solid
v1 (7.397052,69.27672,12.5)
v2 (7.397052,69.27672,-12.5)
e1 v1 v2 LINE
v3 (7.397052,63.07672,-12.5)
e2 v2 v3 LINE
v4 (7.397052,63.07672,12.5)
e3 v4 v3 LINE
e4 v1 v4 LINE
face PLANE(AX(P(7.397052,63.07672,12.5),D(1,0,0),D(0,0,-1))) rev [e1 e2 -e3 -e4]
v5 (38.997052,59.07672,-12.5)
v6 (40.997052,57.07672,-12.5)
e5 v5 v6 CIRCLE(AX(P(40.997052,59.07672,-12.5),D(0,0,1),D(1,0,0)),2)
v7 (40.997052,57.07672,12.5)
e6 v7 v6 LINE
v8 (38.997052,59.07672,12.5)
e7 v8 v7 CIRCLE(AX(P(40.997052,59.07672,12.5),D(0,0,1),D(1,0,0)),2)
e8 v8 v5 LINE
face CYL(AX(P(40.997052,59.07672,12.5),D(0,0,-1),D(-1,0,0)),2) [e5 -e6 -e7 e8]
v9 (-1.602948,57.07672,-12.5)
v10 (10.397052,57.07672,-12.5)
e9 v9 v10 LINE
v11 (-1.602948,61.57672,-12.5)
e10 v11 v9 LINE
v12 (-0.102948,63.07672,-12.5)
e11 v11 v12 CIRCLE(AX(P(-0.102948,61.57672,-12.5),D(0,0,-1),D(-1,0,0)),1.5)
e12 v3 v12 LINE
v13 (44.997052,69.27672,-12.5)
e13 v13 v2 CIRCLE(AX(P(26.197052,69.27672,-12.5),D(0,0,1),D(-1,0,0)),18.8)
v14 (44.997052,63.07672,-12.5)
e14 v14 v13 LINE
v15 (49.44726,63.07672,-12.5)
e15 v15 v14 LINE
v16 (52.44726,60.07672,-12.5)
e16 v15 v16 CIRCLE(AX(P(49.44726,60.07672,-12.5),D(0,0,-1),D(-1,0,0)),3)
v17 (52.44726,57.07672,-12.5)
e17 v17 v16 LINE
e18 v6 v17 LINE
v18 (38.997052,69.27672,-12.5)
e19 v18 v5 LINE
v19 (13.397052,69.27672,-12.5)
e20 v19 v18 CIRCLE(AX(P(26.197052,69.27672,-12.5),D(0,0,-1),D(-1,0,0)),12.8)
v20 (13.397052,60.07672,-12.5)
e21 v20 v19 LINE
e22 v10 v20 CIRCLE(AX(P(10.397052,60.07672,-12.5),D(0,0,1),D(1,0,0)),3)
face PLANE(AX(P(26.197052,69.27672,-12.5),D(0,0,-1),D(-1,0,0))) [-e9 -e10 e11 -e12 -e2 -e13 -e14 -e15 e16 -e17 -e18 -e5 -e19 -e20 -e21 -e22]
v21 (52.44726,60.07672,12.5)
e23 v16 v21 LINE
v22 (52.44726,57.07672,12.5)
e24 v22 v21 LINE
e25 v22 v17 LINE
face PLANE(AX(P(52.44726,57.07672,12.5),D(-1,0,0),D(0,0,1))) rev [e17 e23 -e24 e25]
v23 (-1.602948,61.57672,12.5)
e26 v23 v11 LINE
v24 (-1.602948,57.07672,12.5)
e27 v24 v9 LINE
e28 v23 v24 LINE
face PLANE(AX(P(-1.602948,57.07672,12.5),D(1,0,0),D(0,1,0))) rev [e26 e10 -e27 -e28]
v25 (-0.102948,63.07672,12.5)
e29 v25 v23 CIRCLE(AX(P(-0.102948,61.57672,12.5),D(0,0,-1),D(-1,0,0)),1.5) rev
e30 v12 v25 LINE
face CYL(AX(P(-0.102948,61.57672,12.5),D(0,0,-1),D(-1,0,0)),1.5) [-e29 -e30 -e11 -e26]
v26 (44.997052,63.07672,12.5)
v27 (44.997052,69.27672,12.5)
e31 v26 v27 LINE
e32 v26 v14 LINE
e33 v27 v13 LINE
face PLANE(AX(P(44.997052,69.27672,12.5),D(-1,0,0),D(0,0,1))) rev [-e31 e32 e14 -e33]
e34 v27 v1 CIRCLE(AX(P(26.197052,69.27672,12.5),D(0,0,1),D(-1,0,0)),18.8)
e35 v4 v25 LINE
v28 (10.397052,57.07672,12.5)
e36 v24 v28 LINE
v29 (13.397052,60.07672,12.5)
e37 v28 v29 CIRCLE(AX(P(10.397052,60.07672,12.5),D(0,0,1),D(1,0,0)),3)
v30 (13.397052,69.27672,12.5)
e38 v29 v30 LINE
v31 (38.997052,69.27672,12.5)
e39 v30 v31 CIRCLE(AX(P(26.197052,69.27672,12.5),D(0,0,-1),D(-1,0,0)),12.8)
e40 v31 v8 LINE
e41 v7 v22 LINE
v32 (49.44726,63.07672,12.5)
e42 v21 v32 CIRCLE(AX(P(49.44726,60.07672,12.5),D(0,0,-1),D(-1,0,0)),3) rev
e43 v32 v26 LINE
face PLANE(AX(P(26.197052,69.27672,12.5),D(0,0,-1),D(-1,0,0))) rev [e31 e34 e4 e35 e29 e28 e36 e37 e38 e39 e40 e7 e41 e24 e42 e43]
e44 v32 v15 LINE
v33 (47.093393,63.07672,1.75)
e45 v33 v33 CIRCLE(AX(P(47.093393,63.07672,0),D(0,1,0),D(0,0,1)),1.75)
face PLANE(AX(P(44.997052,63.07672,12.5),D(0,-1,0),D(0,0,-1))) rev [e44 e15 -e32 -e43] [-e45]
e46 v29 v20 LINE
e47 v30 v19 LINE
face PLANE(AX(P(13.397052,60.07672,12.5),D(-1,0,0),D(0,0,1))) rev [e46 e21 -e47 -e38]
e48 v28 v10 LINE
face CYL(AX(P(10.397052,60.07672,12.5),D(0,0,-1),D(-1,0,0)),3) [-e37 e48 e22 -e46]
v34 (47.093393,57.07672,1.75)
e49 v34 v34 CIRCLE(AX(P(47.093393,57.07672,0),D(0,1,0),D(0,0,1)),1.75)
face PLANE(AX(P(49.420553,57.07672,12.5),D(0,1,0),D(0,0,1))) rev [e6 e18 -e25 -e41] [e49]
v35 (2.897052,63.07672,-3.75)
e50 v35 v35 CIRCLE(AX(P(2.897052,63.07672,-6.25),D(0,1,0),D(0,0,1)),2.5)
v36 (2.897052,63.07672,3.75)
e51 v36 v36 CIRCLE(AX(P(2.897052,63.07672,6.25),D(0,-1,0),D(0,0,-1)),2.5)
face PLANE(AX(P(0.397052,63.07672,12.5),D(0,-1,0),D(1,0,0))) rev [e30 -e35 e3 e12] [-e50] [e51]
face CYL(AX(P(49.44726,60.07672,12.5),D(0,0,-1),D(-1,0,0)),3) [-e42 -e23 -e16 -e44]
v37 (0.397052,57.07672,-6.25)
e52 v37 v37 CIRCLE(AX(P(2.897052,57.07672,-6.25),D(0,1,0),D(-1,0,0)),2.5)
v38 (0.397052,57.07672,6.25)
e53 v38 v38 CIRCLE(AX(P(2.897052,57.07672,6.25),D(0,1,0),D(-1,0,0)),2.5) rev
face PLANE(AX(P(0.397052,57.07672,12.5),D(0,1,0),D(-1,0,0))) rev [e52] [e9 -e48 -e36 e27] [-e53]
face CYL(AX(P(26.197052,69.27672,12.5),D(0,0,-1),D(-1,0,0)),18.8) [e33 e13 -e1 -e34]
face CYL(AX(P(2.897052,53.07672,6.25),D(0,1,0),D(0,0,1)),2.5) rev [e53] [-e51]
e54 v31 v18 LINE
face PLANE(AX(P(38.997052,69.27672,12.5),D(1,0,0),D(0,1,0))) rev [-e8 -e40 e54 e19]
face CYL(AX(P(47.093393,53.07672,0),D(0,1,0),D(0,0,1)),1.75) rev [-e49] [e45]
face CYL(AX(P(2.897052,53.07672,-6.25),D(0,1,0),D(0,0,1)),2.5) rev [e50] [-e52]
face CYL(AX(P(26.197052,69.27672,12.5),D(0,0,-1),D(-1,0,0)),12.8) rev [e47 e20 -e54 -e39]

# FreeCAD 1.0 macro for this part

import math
import FreeCAD as App
import Part
import Sketcher
from FreeCAD import Vector


def edges_at(feature, points):
    """Names of the edges that pass closest to the given points."""
    edges = feature.Shape.Edges
    near = lambda p: min(range(len(edges)), key=lambda i: edges[i].distToShape(Part.Vertex(*p))[0])
    return sorted({f"Edge{near(p) + 1}" for p in points})

doc = App.newDocument("Part")
body = doc.addObject("PartDesign::Body", "Body")

# Sketch on XY plane
sketch1 = body.newObject("Sketcher::SketchObject", "Sketch")
sketch1.AttachmentSupport = (doc.getObject("XY_Plane"), [""])
sketch1.MapMode = "FlatFace"
sketch1.addGeometry([
    Part.ArcOfCircle(Part.Circle(Vector(10.4, 60.1, 0), Vector(0, 0, 1), 3), math.radians(-90), math.radians(0)),  # 0
    Part.LineSegment(Vector(13.4, 60.1, 0), Vector(13.4, 69.3, 0)),  # 1
    Part.ArcOfCircle(Part.Circle(Vector(26.2, 69.3, 0), Vector(0, 0, 1), 12.8), math.radians(0), math.radians(180)),  # 2
    Part.LineSegment(Vector(39, 69.3, 0), Vector(39, 59.1, 0)),  # 3
    Part.ArcOfCircle(Part.Circle(Vector(41, 59.1, 0), Vector(0, 0, 1), 2), math.radians(180), math.radians(270)),  # 4
    Part.LineSegment(Vector(41, 57.1, 0), Vector(52.4, 57.1, 0)),  # 5
    Part.LineSegment(Vector(52.4, 57.1, 0), Vector(52.4, 63.1, 0)),  # 6
    Part.LineSegment(Vector(52.4, 63.1, 0), Vector(45, 63.1, 0)),  # 7
    Part.LineSegment(Vector(45, 63.1, 0), Vector(45, 69.3, 0)),  # 8
    Part.ArcOfCircle(Part.Circle(Vector(26.2, 69.3, 0), Vector(0, 0, 1), 18.8), math.radians(0), math.radians(180)),  # 9
    Part.LineSegment(Vector(7.4, 69.3, 0), Vector(7.4, 63.1, 0)),  # 10
    Part.LineSegment(Vector(7.4, 63.1, 0), Vector(-1.6, 63.1, 0)),  # 11
    Part.LineSegment(Vector(-1.6, 63.1, 0), Vector(-1.6, 57.1, 0)),  # 12
    Part.LineSegment(Vector(-1.6, 57.1, 0), Vector(10.4, 57.1, 0)),  # 13
], False)
sketch1.addConstraint([
    Sketcher.Constraint("Tangent", 0, 2, 1, 1),
    Sketcher.Constraint("Tangent", 1, 2, 2, 2),
    Sketcher.Constraint("Tangent", 2, 1, 3, 1),
    Sketcher.Constraint("Tangent", 3, 2, 4, 1),
    Sketcher.Constraint("Tangent", 4, 2, 5, 1),
    Sketcher.Constraint("Coincident", 5, 2, 6, 1),
    Sketcher.Constraint("Coincident", 6, 2, 7, 1),
    Sketcher.Constraint("Coincident", 7, 2, 8, 1),
    Sketcher.Constraint("Tangent", 8, 2, 9, 1),
    Sketcher.Constraint("Tangent", 9, 2, 10, 1),
    Sketcher.Constraint("Coincident", 10, 2, 11, 1),
    Sketcher.Constraint("Coincident", 11, 2, 12, 1),
    Sketcher.Constraint("Coincident", 12, 2, 13, 1),
    Sketcher.Constraint("Tangent", 13, 2, 0, 1),
    Sketcher.Constraint("Vertical", 1),
    Sketcher.Constraint("Vertical", 3),
    Sketcher.Constraint("Horizontal", 5),
    Sketcher.Constraint("Vertical", 6),
    Sketcher.Constraint("Horizontal", 7),
    Sketcher.Constraint("Vertical", 8),
    Sketcher.Constraint("Vertical", 10),
    Sketcher.Constraint("Horizontal", 11),
    Sketcher.Constraint("Vertical", 12),
    Sketcher.Constraint("Horizontal", 13),
    Sketcher.Constraint("Coincident", 9, 3, 2, 3),
    Sketcher.Constraint("Horizontal", 7, 2, 10, 2),
    Sketcher.Constraint("Horizontal", 5, 2, 12, 2),
    Sketcher.Constraint("Radius", 0, 3.0),
    Sketcher.Constraint("Radius", 4, 2.0),
    Sketcher.Constraint("Radius", 2, 12.8),
    Sketcher.Constraint("Radius", 9, 18.8),
    Sketcher.Constraint("DistanceX", 11, 2, 11, 1, 9.0),
    Sketcher.Constraint("DistanceY", 6, 1, 6, 2, 6.0),
    Sketcher.Constraint("DistanceY", 1, 1, 1, 2, 9.2),
    Sketcher.Constraint("DistanceX", 5, 1, 5, 2, 11.450209),
    Sketcher.Constraint("DistanceX", -1, 1, 0, 3, 10.397052),
    Sketcher.Constraint("DistanceY", -1, 1, 0, 3, 60.07672),
])
pad1 = body.newObject("PartDesign::Pad", "Pad")
pad1.Profile = sketch1
pad1.Length = 25
pad1.Midplane = True

# Sketch on XZ plane
sketch2 = body.newObject("Sketcher::SketchObject", "Sketch001")
sketch2.AttachmentSupport = (doc.getObject("XZ_Plane"), [""])
sketch2.MapMode = "FlatFace"
sketch2.AttachmentOffset = App.Placement(Vector(0, 0, -63.07672), App.Rotation())
sketch2.addGeometry([
    Part.Circle(Vector(2.9, -6.2, 0), Vector(0, 0, 1), 2.5),
    Part.Circle(Vector(2.9, 6.2, 0), Vector(0, 0, 1), 2.5),
    Part.Circle(Vector(47.1, 0, 0), Vector(0, 0, 1), 1.8),
], False)
sketch2.addConstraint([
    Sketcher.Constraint("Equal", 0, 1),
    Sketcher.Constraint("Symmetric", 0, 3, 1, 3, -1),
    Sketcher.Constraint("PointOnObject", 2, 3, -1),
    Sketcher.Constraint("Diameter", 0, 5.0),
    Sketcher.Constraint("Diameter", 2, 3.5),
    Sketcher.Constraint("DistanceY", 0, 3, 1, 3, 12.5),
    Sketcher.Constraint("DistanceX", -1, 1, 0, 3, 2.897052),
    Sketcher.Constraint("DistanceX", 0, 3, 2, 3, 44.196342),
])
pocket1 = body.newObject("PartDesign::Pocket", "Pocket")
pocket1.Profile = sketch2
pocket1.Length = 10
pocket1.Reversed = True
doc.recompute()

fillet = body.newObject("PartDesign::Fillet", "Fillet")
fillet.Base = (pocket1, edges_at(pocket1, [(52.447, 63.077, 0)]))
fillet.Radius = 3
doc.recompute()

fillet2 = body.newObject("PartDesign::Fillet", "Fillet001")
fillet2.Base = (fillet, edges_at(fillet, [(-1.603, 63.077, 0)]))
fillet2.Radius = 1.5

doc.recompute()
